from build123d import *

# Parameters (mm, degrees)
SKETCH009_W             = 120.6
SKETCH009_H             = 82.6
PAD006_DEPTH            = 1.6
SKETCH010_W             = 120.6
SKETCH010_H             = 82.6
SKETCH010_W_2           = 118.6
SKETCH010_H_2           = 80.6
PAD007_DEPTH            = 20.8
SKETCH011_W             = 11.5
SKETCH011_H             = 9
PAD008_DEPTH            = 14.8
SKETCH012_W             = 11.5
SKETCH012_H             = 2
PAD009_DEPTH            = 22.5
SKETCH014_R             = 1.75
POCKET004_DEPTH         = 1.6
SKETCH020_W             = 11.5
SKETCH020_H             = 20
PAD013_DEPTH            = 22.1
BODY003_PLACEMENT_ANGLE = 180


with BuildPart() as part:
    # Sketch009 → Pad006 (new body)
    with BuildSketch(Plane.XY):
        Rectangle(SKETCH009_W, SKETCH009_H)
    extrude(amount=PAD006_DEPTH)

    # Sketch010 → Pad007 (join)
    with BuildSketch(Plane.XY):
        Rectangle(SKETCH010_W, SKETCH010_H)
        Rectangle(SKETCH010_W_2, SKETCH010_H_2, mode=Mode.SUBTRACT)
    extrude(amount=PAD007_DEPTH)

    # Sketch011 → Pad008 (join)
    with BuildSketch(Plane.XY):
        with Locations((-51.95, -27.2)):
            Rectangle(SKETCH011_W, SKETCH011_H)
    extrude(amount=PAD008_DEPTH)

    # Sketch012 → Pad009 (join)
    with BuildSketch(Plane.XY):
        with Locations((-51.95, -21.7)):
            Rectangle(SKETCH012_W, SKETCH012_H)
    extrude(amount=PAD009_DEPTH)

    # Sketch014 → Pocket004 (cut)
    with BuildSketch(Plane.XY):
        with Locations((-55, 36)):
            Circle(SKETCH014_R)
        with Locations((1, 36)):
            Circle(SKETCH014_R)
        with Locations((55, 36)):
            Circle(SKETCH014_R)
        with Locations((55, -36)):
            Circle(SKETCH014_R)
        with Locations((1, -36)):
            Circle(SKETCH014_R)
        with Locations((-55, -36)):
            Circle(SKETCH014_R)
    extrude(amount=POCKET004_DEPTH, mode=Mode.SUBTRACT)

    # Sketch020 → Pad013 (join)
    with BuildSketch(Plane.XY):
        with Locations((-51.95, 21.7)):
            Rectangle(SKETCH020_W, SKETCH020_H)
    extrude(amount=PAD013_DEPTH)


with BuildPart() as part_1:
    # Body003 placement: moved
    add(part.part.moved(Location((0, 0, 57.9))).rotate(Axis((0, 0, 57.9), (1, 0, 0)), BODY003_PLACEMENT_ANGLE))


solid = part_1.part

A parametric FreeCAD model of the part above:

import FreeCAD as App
import Part
import Sketcher

doc = App.newDocument("Part")
body = doc.addObject("PartDesign::Body", "Body")

# Sketch on XY plane
sketch1 = body.newObject("Sketcher::SketchObject", "Sketch")
sketch1.AttachmentSupport = (doc.getObject("XY_Plane"), [""])
sketch1.MapMode = "FlatFace"
sketch1.addGeometry(Part.LineSegment(App.Vector(-60, 41, 0), App.Vector(-60, -41, 0)), False)
sketch1.addGeometry(Part.LineSegment(App.Vector(-60, -41, 0), App.Vector(60, -41, 0)), False)
sketch1.addGeometry(Part.LineSegment(App.Vector(60, -41, 0), App.Vector(60, 41, 0)), False)
sketch1.addGeometry(Part.LineSegment(App.Vector(60, 41, 0), App.Vector(-60, 41, 0)), False)
sketch1.addConstraint(Sketcher.Constraint("Coincident", 0, 2, 1, 1))
sketch1.addConstraint(Sketcher.Constraint("Coincident", 1, 2, 2, 1))
sketch1.addConstraint(Sketcher.Constraint("Coincident", 2, 2, 3, 1))
sketch1.addConstraint(Sketcher.Constraint("Coincident", 3, 2, 0, 1))
sketch1.addConstraint(Sketcher.Constraint("Vertical", 0))
sketch1.addConstraint(Sketcher.Constraint("Horizontal", 1))
sketch1.addConstraint(Sketcher.Constraint("Vertical", 2))
sketch1.addConstraint(Sketcher.Constraint("Horizontal", 3))
sketch1.addConstraint(Sketcher.Constraint("Symmetric", 0, 2, 2, 2, -1, 1))
sketch1.addConstraint(Sketcher.Constraint("DistanceX", 1, 1, 1, 2, 120.6))
sketch1.addConstraint(Sketcher.Constraint("DistanceY", 0, 2, 0, 1, 82.6))
pad1 = body.newObject("PartDesign::Pad", "Pad")
pad1.Profile = sketch1
pad1.Length = 1.6

# Sketch on XY plane
sketch2 = body.newObject("Sketcher::SketchObject", "Sketch001")
sketch2.AttachmentSupport = (doc.getObject("XY_Plane"), [""])
sketch2.MapMode = "FlatFace"
sketch2.addGeometry(Part.LineSegment(App.Vector(-60, 41, 0), App.Vector(-60, -41, 0)), False)
sketch2.addGeometry(Part.LineSegment(App.Vector(-60, -41, 0), App.Vector(60, -41, 0)), False)
sketch2.addGeometry(Part.LineSegment(App.Vector(60, -41, 0), App.Vector(60, 41, 0)), False)
sketch2.addGeometry(Part.LineSegment(App.Vector(60, 41, 0), App.Vector(-60, 41, 0)), False)
sketch2.addGeometry(Part.LineSegment(App.Vector(59, -40, 0), App.Vector(-59, -40, 0)), False)
sketch2.addGeometry(Part.LineSegment(App.Vector(-59, -40, 0), App.Vector(-59, 40, 0)), False)
sketch2.addGeometry(Part.LineSegment(App.Vector(-59, 40, 0), App.Vector(59, 40, 0)), False)
sketch2.addGeometry(Part.LineSegment(App.Vector(59, 40, 0), App.Vector(59, -40, 0)), False)
sketch2.addConstraint(Sketcher.Constraint("Coincident", 0, 2, 1, 1))
sketch2.addConstraint(Sketcher.Constraint("Coincident", 1, 2, 2, 1))
sketch2.addConstraint(Sketcher.Constraint("Coincident", 2, 2, 3, 1))
sketch2.addConstraint(Sketcher.Constraint("Coincident", 3, 2, 0, 1))
sketch2.addConstraint(Sketcher.Constraint("Coincident", 4, 2, 5, 1))
sketch2.addConstraint(Sketcher.Constraint("Coincident", 5, 2, 6, 1))
sketch2.addConstraint(Sketcher.Constraint("Coincident", 6, 2, 7, 1))
sketch2.addConstraint(Sketcher.Constraint("Coincident", 7, 2, 4, 1))
sketch2.addConstraint(Sketcher.Constraint("Vertical", 0))
sketch2.addConstraint(Sketcher.Constraint("Horizontal", 1))
sketch2.addConstraint(Sketcher.Constraint("Vertical", 2))
sketch2.addConstraint(Sketcher.Constraint("Horizontal", 3))
sketch2.addConstraint(Sketcher.Constraint("Horizontal", 4))
sketch2.addConstraint(Sketcher.Constraint("Vertical", 5))
sketch2.addConstraint(Sketcher.Constraint("Horizontal", 6))
sketch2.addConstraint(Sketcher.Constraint("Vertical", 7))
sketch2.addConstraint(Sketcher.Constraint("Symmetric", 0, 2, 2, 2, -1, 1))
sketch2.addConstraint(Sketcher.Constraint("Symmetric", 4, 2, 6, 2, -1, 1))
sketch2.addConstraint(Sketcher.Constraint("DistanceX", 1, 1, 1, 2, 120.6))
sketch2.addConstraint(Sketcher.Constraint("DistanceX", 4, 2, 4, 1, 118.6))
sketch2.addConstraint(Sketcher.Constraint("DistanceY", 0, 2, 0, 1, 82.6))
sketch2.addConstraint(Sketcher.Constraint("DistanceY", 5, 1, 5, 2, 80.6))
pad2 = body.newObject("PartDesign::Pad", "Pad001")
pad2.Profile = sketch2
pad2.Length = 20.8

# Sketch on XY plane
sketch3 = body.newObject("Sketcher::SketchObject", "Sketch002")
sketch3.AttachmentSupport = (doc.getObject("XY_Plane"), [""])
sketch3.MapMode = "FlatFace"
sketch3.addGeometry(Part.LineSegment(App.Vector(-58, -23, 0), App.Vector(-58, -32, 0)), False)
sketch3.addGeometry(Part.LineSegment(App.Vector(-58, -32, 0), App.Vector(-46, -32, 0)), False)
sketch3.addGeometry(Part.LineSegment(App.Vector(-46, -32, 0), App.Vector(-46, -23, 0)), False)
sketch3.addGeometry(Part.LineSegment(App.Vector(-46, -23, 0), App.Vector(-58, -23, 0)), False)
sketch3.addConstraint(Sketcher.Constraint("Coincident", 0, 2, 1, 1))
sketch3.addConstraint(Sketcher.Constraint("Coincident", 1, 2, 2, 1))
sketch3.addConstraint(Sketcher.Constraint("Coincident", 2, 2, 3, 1))
sketch3.addConstraint(Sketcher.Constraint("Coincident", 3, 2, 0, 1))
sketch3.addConstraint(Sketcher.Constraint("Vertical", 0))
sketch3.addConstraint(Sketcher.Constraint("Horizontal", 1))
sketch3.addConstraint(Sketcher.Constraint("Vertical", 2))
sketch3.addConstraint(Sketcher.Constraint("Horizontal", 3))
sketch3.addConstraint(Sketcher.Constraint("DistanceY", 0, 2, 0, 1, 9.0))
sketch3.addConstraint(Sketcher.Constraint("DistanceX", 1, 1, 1, 2, 11.5))
sketch3.addConstraint(Sketcher.Constraint("DistanceX", 0, 2, -1, 1, 57.7))
sketch3.addConstraint(Sketcher.Constraint("DistanceY", 0, 2, -1, 1, 31.7))
pad3 = body.newObject("PartDesign::Pad", "Pad002")
pad3.Profile = sketch3
pad3.Length = 14.8

# Sketch on XY plane
sketch4 = body.newObject("Sketcher::SketchObject", "Sketch003")
sketch4.AttachmentSupport = (doc.getObject("XY_Plane"), [""])
sketch4.MapMode = "FlatFace"
sketch4.addGeometry(Part.LineSegment(App.Vector(-57.7, -20.7, 0), App.Vector(-57.7, -22.7, 0)), False)
sketch4.addGeometry(Part.LineSegment(App.Vector(-57.7, -22.7, 0), App.Vector(-46.2, -22.7, 0)), False)
sketch4.addGeometry(Part.LineSegment(App.Vector(-46.2, -22.7, 0), App.Vector(-46.2, -20.7, 0)), False)
sketch4.addGeometry(Part.LineSegment(App.Vector(-46.2, -20.7, 0), App.Vector(-57.7, -20.7, 0)), False)
sketch4.addConstraint(Sketcher.Constraint("Coincident", 0, 2, 1, 1))
sketch4.addConstraint(Sketcher.Constraint("Coincident", 1, 2, 2, 1))
sketch4.addConstraint(Sketcher.Constraint("Coincident", 2, 2, 3, 1))
sketch4.addConstraint(Sketcher.Constraint("Coincident", 3, 2, 0, 1))
sketch4.addConstraint(Sketcher.Constraint("Vertical", 0))
sketch4.addConstraint(Sketcher.Constraint("Horizontal", 1))
sketch4.addConstraint(Sketcher.Constraint("Vertical", 2))
sketch4.addConstraint(Sketcher.Constraint("Horizontal", 3))
sketch4.addConstraint(Sketcher.Constraint("DistanceY", 0, 2, 0, 1, 2.0))
sketch4.addConstraint(Sketcher.Constraint("DistanceX", 1, 1, 1, 2, 11.5))
sketch4.addConstraint(Sketcher.Constraint("DistanceX", 0, 2, -1, 1, 57.7))
sketch4.addConstraint(Sketcher.Constraint("DistanceY", 0, 2, -1, 1, 22.7))
pad4 = body.newObject("PartDesign::Pad", "Pad003")
pad4.Profile = sketch4
pad4.Length = 22.5

# Sketch on XY plane
sketch5 = body.newObject("Sketcher::SketchObject", "Sketch004")
sketch5.AttachmentSupport = (doc.getObject("XY_Plane"), [""])
sketch5.MapMode = "FlatFace"
sketch5.addGeometry(Part.Circle(App.Vector(-55, 36, 0), App.Vector(0, 0, 1), 1.8), False)
sketch5.addGeometry(Part.Circle(App.Vector(1, 36, 0), App.Vector(0, 0, 1), 1.8), False)
sketch5.addGeometry(Part.Circle(App.Vector(55, 36, 0), App.Vector(0, 0, 1), 1.8), False)
sketch5.addGeometry(Part.Circle(App.Vector(55, -36, 0), App.Vector(0, 0, 1), 1.8), False)
sketch5.addGeometry(Part.Circle(App.Vector(1, -36, 0), App.Vector(0, 0, 1), 1.8), False)
sketch5.addGeometry(Part.Circle(App.Vector(-55, -36, 0), App.Vector(0, 0, 1), 1.8), False)
sketch5.addConstraint(Sketcher.Constraint("Equal", 0, 1))
sketch5.addConstraint(Sketcher.Constraint("Equal", 1, 2))
sketch5.addConstraint(Sketcher.Constraint("Equal", 2, 3))
sketch5.addConstraint(Sketcher.Constraint("Equal", 3, 4))
sketch5.addConstraint(Sketcher.Constraint("Equal", 4, 5))
sketch5.addConstraint(Sketcher.Constraint("Symmetric", 0, 3, 3, 3, -1, 1))
sketch5.addConstraint(Sketcher.Constraint("Symmetric", 2, 3, 5, 3, -1, 1))
sketch5.addConstraint(Sketcher.Constraint("Symmetric", 0, 3, 2, 3, -2))
sketch5.addConstraint(Sketcher.Constraint("Symmetric", 1, 3, 4, 3, -1))
sketch5.addConstraint(Sketcher.Constraint("Horizontal", 0, 3, 1, 3))
sketch5.addConstraint(Sketcher.Constraint("Diameter", 0, 3.5))
sketch5.addConstraint(Sketcher.Constraint("DistanceX", 0, 3, -1, 1, 55.0))
sketch5.addConstraint(Sketcher.Constraint("DistanceY", -1, 1, 0, 3, 36.0))
sketch5.addConstraint(Sketcher.Constraint("DistanceX", -1, 1, 1, 3, 1.0))
pocket1 = body.newObject("PartDesign::Pocket", "Pocket")
pocket1.Profile = sketch5
pocket1.Length = 1.6
pocket1.Reversed = True

# Sketch on XY plane
sketch6 = body.newObject("Sketcher::SketchObject", "Sketch005")
sketch6.AttachmentSupport = (doc.getObject("XY_Plane"), [""])
sketch6.MapMode = "FlatFace"
sketch6.addGeometry(Part.LineSegment(App.Vector(-58, 32, 0), App.Vector(-58, 12, 0)), False)
sketch6.addGeometry(Part.LineSegment(App.Vector(-58, 12, 0), App.Vector(-46, 12, 0)), False)
sketch6.addGeometry(Part.LineSegment(App.Vector(-46, 12, 0), App.Vector(-46, 32, 0)), False)
sketch6.addGeometry(Part.LineSegment(App.Vector(-46, 32, 0), App.Vector(-58, 32, 0)), False)
sketch6.addConstraint(Sketcher.Constraint("Coincident", 0, 2, 1, 1))
sketch6.addConstraint(Sketcher.Constraint("Coincident", 1, 2, 2, 1))
sketch6.addConstraint(Sketcher.Constraint("Coincident", 2, 2, 3, 1))
sketch6.addConstraint(Sketcher.Constraint("Coincident", 3, 2, 0, 1))
sketch6.addConstraint(Sketcher.Constraint("Vertical", 0))
sketch6.addConstraint(Sketcher.Constraint("Horizontal", 1))
sketch6.addConstraint(Sketcher.Constraint("Vertical", 2))
sketch6.addConstraint(Sketcher.Constraint("Horizontal", 3))
sketch6.addConstraint(Sketcher.Constraint("DistanceY", 0, 2, 0, 1, 20.0))
sketch6.addConstraint(Sketcher.Constraint("DistanceX", 1, 1, 1, 2, 11.5))
sketch6.addConstraint(Sketcher.Constraint("DistanceX", 0, 2, -1, 1, 57.7))
sketch6.addConstraint(Sketcher.Constraint("DistanceY", -1, 1, 0, 2, 11.7))
pad5 = body.newObject("PartDesign::Pad", "Pad004")
pad5.Profile = sketch6
pad5.Length = 22.1
body2 = doc.addObject("PartDesign::Body", "Body001")
doc.recompute()

body.Placement = App.Placement(App.Vector(0, 0, 57.9), App.Rotation(App.Vector(1, 0, 0), 180))
boolean = body2.newObject("PartDesign::Boolean", "Boolean")
boolean.Type = "Fuse"
boolean.addObjects([body])

doc.recompute()
